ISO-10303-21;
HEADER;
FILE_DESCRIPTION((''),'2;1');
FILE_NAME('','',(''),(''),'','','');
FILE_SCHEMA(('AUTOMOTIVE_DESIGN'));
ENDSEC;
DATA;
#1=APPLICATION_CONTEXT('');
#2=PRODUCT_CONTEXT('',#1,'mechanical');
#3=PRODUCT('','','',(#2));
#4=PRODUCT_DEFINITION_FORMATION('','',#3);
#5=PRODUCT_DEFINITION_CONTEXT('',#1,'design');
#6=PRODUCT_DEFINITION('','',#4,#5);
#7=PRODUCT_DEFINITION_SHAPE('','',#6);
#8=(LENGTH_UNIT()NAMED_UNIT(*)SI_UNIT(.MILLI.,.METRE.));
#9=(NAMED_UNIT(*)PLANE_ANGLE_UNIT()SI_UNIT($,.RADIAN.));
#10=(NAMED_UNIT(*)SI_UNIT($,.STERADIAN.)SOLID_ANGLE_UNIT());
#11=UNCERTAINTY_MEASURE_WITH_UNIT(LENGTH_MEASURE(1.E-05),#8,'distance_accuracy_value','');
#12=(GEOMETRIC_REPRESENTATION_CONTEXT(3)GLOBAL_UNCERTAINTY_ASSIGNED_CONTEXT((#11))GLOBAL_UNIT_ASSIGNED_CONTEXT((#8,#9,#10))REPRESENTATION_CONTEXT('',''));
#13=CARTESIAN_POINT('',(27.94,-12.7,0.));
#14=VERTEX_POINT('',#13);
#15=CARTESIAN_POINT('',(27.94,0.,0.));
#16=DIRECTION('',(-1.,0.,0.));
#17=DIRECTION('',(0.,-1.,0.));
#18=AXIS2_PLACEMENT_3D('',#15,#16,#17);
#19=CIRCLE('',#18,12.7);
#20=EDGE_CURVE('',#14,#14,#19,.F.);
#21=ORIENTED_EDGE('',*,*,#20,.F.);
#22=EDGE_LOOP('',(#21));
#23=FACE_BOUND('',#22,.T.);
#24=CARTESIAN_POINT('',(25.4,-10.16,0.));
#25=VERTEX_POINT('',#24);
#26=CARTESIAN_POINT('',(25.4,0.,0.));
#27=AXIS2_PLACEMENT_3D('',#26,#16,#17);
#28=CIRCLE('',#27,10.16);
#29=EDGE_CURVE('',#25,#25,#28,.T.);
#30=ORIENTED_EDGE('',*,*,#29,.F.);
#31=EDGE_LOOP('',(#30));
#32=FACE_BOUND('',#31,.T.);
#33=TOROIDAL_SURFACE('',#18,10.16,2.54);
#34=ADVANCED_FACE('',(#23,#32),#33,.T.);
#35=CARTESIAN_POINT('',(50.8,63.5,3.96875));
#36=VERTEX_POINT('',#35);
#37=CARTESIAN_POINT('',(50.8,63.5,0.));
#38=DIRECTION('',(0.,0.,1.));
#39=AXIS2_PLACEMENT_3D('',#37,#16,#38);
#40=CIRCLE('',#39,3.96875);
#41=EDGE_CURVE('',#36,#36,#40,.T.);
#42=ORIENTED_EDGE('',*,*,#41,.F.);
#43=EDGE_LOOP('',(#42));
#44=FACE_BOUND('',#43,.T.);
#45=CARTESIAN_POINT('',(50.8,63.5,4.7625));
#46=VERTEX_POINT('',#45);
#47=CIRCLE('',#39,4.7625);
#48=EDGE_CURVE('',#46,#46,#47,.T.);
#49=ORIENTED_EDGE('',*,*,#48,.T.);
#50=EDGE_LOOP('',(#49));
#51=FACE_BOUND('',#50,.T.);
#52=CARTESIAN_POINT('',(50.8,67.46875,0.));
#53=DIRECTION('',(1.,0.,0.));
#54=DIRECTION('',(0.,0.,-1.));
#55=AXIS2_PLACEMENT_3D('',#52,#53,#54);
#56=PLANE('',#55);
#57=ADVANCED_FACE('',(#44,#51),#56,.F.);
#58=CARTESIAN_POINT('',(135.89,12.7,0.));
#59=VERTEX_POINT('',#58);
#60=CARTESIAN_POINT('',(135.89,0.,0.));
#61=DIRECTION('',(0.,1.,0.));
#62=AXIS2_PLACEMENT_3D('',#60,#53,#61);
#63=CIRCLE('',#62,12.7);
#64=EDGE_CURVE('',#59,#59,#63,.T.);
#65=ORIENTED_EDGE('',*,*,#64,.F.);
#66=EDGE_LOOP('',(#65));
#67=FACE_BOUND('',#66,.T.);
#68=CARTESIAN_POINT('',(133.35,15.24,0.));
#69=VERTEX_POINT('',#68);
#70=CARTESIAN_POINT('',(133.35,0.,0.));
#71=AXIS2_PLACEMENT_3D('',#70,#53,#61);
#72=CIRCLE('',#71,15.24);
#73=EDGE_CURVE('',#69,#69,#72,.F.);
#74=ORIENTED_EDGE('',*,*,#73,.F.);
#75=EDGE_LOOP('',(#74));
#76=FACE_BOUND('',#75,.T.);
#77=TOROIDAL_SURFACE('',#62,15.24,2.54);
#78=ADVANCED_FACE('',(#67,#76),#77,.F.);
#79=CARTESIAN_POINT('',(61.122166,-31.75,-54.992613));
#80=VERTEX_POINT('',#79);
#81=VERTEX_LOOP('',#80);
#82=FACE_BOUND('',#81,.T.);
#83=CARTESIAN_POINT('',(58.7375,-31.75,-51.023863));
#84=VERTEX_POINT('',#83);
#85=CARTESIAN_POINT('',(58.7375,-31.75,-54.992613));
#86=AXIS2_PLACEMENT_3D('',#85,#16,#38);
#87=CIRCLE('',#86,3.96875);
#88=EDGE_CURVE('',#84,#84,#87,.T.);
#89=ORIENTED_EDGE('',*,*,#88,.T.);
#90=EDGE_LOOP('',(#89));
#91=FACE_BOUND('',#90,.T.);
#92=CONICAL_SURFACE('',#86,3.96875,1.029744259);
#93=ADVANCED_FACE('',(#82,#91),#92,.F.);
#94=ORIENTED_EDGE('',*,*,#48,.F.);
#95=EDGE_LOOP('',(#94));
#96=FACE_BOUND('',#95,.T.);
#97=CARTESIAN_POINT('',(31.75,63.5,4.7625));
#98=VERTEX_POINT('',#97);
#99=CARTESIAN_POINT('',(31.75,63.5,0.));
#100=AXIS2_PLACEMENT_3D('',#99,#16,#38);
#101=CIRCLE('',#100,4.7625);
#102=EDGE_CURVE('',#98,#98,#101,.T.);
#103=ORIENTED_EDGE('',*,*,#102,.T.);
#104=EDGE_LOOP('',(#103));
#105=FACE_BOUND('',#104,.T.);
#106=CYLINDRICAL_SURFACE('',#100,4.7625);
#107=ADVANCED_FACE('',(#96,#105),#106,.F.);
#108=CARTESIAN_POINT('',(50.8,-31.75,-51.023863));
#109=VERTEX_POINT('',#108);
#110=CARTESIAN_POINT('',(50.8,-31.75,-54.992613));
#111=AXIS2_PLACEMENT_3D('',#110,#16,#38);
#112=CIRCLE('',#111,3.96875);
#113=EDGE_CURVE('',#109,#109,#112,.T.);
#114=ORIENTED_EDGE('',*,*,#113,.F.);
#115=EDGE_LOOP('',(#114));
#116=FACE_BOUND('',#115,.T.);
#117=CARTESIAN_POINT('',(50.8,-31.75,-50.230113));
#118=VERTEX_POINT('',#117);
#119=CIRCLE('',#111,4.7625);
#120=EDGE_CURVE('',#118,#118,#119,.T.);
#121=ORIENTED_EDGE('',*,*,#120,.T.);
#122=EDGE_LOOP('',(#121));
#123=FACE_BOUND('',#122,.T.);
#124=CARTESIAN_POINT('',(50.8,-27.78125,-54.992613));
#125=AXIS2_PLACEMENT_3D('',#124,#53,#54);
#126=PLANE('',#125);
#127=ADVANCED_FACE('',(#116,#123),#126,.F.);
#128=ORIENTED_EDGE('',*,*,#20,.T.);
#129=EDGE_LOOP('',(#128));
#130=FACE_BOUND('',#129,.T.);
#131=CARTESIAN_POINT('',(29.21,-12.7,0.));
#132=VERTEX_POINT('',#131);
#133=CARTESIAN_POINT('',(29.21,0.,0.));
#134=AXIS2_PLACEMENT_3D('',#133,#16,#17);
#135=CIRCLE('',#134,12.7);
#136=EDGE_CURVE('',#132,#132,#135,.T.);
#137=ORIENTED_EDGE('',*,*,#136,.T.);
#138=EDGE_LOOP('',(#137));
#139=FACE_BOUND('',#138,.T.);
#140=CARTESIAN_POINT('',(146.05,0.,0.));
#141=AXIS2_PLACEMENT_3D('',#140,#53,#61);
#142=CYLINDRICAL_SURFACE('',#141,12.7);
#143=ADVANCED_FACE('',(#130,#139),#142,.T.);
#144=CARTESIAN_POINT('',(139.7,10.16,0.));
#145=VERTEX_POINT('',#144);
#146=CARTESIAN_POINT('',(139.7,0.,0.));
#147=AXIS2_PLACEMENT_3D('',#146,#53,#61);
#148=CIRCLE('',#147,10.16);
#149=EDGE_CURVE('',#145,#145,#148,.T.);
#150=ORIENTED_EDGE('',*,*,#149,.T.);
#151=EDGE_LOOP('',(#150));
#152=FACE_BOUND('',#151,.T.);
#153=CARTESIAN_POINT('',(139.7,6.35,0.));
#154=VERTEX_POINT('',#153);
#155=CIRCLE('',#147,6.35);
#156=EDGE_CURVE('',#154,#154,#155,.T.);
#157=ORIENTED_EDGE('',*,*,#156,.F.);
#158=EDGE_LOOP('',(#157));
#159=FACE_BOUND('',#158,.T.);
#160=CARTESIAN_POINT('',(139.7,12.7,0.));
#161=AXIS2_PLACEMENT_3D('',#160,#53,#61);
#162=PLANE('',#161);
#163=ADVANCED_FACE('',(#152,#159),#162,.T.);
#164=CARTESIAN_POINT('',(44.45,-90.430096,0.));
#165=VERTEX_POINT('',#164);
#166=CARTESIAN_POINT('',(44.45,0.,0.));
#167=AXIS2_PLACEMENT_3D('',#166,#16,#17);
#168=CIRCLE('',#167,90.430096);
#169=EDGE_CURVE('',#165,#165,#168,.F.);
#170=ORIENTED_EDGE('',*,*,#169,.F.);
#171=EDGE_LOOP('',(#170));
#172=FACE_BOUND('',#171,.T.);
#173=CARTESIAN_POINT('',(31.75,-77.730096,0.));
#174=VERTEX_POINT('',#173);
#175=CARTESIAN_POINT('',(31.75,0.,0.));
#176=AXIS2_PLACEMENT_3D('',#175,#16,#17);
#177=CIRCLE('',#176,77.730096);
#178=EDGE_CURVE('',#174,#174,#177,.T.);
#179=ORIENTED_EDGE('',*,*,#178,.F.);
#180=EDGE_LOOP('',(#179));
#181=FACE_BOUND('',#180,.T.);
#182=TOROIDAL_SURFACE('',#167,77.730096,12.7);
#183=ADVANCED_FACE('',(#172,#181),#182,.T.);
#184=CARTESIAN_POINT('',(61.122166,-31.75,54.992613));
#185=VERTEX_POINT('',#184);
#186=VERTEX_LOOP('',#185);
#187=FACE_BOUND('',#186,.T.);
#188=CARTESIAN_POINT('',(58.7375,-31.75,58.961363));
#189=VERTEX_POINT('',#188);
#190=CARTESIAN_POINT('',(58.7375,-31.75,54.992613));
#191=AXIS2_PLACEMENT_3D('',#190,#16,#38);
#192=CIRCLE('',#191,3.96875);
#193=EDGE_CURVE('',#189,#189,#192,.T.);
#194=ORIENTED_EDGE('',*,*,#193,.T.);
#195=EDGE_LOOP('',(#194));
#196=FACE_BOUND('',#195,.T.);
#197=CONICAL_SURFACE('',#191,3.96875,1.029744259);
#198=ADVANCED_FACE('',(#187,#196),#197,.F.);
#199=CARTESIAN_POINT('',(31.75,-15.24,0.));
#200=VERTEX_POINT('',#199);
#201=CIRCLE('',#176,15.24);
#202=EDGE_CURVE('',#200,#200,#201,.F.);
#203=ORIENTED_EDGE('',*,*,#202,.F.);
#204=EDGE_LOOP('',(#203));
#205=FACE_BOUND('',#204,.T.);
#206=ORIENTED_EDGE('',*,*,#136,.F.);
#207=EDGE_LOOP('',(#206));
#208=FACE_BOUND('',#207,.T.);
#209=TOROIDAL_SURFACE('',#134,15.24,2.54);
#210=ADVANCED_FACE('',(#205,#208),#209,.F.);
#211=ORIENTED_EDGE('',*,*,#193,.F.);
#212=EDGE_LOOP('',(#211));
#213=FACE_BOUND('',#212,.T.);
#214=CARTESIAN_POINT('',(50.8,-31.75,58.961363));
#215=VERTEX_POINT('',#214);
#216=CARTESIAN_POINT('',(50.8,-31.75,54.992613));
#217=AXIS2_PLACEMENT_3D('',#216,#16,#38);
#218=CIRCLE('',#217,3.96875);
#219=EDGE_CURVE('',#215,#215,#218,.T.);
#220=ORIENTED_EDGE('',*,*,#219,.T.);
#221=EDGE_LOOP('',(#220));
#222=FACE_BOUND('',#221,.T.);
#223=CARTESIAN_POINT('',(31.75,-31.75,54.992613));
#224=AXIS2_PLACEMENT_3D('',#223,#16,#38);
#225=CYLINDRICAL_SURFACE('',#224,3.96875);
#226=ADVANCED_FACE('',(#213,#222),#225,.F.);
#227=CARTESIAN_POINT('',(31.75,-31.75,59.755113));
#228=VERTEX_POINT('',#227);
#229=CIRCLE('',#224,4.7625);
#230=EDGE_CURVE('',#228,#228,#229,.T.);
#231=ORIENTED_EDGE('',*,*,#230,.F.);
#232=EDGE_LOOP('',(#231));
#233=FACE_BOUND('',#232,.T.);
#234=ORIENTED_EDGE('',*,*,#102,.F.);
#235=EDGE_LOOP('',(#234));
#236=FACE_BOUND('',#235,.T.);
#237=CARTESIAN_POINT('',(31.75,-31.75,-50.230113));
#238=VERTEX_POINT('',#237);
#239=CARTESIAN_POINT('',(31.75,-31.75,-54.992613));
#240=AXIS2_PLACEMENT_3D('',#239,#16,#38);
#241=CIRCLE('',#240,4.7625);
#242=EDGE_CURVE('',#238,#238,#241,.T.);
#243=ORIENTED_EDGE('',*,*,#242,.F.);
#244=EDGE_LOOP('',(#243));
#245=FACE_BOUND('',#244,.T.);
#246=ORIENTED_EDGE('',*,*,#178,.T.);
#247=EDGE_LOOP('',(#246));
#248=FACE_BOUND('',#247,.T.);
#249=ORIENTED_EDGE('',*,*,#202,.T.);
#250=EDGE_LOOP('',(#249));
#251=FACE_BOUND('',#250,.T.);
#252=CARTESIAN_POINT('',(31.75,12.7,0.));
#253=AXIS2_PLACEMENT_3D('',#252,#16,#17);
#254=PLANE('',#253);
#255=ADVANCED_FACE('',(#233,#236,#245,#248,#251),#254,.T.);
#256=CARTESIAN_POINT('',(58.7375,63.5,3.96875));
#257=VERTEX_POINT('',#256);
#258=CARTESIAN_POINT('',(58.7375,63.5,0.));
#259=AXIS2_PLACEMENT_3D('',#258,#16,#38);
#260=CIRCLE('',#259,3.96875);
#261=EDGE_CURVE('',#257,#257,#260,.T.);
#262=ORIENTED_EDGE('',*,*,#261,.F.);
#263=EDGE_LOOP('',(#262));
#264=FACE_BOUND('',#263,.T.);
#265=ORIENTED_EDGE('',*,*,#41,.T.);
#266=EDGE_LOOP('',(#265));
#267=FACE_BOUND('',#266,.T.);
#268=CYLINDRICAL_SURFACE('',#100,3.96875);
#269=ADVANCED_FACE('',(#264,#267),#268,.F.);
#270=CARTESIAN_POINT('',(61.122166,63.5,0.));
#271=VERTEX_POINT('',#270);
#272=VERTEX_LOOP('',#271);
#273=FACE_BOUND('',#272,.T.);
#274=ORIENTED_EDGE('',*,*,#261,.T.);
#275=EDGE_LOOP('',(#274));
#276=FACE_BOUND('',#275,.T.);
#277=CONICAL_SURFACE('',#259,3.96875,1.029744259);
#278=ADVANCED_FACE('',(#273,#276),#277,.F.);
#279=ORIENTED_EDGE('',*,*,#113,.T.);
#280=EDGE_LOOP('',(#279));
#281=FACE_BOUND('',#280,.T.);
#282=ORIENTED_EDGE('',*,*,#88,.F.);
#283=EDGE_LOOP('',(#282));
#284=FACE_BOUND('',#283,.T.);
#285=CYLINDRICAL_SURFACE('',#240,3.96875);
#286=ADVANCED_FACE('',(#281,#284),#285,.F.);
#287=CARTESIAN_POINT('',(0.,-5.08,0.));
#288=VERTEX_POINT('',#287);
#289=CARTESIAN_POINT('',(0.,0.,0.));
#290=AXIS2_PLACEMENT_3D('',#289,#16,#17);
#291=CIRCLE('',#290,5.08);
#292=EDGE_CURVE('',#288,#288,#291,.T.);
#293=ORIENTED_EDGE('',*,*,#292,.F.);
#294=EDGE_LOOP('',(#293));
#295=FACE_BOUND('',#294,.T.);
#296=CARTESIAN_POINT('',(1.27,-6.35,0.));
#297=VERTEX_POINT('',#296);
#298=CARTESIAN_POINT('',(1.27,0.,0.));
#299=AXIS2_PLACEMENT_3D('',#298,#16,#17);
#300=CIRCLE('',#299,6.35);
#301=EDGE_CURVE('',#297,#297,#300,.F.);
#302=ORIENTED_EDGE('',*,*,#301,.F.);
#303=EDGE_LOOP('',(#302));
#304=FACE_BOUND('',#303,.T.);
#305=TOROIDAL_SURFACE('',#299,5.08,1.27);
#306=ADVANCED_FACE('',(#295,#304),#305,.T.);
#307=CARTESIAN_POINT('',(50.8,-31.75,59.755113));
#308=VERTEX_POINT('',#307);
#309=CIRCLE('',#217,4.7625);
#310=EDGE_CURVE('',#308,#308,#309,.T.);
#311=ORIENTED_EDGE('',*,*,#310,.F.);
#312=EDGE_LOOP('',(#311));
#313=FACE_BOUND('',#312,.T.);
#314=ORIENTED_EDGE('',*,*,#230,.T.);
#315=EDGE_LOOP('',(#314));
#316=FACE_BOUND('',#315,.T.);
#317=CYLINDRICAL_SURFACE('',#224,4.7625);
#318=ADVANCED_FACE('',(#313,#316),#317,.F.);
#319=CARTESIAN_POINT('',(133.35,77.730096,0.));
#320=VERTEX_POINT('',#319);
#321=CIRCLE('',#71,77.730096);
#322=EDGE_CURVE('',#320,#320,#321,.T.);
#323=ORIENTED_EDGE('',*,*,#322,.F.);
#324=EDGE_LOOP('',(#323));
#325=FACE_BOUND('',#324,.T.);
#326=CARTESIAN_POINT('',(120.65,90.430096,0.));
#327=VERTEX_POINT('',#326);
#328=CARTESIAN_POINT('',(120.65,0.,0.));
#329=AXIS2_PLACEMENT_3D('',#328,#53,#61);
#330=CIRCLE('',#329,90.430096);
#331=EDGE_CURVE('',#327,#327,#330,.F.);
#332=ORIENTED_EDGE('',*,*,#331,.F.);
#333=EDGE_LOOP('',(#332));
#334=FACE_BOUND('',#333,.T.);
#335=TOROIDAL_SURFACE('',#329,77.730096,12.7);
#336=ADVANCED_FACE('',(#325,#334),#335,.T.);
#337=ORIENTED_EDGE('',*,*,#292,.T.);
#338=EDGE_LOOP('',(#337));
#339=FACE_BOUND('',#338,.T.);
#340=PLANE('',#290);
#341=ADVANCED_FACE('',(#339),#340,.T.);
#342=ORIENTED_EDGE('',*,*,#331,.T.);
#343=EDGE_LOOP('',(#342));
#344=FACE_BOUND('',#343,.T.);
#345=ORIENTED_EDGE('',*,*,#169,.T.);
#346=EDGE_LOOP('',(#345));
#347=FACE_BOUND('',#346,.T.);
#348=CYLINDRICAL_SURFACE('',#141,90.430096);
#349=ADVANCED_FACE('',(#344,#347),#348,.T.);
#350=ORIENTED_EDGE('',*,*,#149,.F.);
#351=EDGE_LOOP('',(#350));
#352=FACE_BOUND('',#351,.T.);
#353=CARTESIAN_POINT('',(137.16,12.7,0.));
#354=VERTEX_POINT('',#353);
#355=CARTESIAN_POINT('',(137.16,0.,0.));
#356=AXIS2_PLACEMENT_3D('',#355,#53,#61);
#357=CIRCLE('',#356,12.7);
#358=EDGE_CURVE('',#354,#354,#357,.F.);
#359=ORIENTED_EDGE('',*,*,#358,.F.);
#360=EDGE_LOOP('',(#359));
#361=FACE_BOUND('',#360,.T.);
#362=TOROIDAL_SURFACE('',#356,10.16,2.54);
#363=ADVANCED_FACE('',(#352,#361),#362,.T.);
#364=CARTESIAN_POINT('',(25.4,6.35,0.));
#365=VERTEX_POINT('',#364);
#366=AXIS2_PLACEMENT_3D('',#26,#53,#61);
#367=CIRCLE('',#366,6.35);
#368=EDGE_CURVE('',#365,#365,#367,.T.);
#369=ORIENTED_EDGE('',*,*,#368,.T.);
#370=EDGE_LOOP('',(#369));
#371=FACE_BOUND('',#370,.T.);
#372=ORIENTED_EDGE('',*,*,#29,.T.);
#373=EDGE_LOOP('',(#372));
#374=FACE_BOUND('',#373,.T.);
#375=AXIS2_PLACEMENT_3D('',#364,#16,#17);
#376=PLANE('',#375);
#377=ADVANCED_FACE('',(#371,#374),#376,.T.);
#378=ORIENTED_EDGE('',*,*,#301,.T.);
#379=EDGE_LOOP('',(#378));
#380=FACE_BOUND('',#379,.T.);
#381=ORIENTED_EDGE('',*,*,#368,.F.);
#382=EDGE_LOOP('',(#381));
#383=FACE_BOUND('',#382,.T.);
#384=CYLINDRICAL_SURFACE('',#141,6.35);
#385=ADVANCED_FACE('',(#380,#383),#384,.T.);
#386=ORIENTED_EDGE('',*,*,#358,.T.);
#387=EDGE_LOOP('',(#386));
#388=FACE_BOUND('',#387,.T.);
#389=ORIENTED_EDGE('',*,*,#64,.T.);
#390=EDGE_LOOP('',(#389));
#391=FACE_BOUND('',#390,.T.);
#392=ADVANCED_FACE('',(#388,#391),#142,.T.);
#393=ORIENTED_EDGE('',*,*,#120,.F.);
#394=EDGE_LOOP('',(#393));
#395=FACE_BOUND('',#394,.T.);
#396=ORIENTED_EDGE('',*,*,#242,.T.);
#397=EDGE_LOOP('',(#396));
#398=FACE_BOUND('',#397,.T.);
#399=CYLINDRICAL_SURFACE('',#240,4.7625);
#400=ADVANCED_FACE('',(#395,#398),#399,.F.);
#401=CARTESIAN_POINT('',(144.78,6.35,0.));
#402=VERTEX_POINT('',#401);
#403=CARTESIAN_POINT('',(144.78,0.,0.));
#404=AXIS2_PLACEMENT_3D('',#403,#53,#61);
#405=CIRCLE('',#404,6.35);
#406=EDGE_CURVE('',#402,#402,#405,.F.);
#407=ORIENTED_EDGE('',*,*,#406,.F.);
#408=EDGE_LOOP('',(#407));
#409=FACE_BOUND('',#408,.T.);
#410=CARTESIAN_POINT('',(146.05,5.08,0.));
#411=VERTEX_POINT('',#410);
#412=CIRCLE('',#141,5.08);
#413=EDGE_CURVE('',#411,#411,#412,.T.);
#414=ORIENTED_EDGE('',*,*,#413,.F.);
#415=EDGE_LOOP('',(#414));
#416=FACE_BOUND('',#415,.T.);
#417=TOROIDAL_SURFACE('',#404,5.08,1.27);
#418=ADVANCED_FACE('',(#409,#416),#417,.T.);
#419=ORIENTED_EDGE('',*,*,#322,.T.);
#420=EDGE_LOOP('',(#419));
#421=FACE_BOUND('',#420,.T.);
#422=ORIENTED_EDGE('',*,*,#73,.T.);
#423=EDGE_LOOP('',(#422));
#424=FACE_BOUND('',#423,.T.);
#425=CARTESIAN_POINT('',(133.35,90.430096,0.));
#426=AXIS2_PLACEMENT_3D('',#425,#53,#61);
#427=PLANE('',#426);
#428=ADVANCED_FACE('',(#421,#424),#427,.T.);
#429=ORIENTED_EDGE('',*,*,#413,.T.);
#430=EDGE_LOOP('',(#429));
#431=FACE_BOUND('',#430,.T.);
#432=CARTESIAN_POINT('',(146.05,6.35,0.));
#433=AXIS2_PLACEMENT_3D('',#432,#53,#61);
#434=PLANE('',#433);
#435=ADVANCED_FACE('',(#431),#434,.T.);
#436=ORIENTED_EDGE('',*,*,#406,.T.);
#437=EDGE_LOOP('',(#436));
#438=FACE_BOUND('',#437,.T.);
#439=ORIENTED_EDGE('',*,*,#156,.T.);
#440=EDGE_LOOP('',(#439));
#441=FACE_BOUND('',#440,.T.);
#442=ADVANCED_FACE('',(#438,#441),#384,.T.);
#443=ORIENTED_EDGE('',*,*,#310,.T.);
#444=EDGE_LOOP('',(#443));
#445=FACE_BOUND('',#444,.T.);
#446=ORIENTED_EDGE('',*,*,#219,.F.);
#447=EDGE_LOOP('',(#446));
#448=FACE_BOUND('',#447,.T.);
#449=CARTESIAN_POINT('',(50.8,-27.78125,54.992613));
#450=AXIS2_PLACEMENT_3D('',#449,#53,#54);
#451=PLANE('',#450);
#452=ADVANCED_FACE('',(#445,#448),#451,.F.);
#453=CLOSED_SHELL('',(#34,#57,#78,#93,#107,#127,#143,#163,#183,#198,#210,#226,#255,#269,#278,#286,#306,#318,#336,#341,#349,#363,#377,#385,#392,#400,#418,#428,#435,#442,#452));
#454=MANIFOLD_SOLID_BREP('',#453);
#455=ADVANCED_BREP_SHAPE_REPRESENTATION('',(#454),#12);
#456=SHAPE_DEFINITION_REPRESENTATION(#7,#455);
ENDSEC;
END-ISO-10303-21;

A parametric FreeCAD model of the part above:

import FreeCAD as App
import Part
import Sketcher
Q = App.Units.Quantity


def edges_at(feature, points):
    """Names of the edges that pass closest to the given points."""
    edges = feature.Shape.Edges
    near = lambda p: min(range(len(edges)), key=lambda i: edges[i].distToShape(Part.Vertex(*p))[0])
    return sorted({f"Edge{near(p) + 1}" for p in points})


def add_polygon(sketch, points):
    """Adds a closed chain of lines whose ends are joined by coincident constraints."""
    first, n = sketch.GeometryCount, len(points)
    for a, b in zip(points, points[1:] + points[:1]):
        sketch.addGeometry(Part.LineSegment(App.Vector(*a, 0), App.Vector(*b, 0)), False)
    for i in range(n):
        sketch.addConstraint(Sketcher.Constraint("Coincident", first + i, 2, first + (i + 1) % n, 1))

doc = App.newDocument("Part")
body = doc.addObject("PartDesign::Body", "Body")

sketch1 = doc.addObject("Sketcher::SketchObject", "Sketch")
body.addObject(sketch1)
sketch1.AttachmentSupport = (doc.XY_Plane, [""])
sketch1.MapMode = "FlatFace"
add_polygon(sketch1, [(0, 6), (0, 0), (146, 0), (146, 6), (140, 6), (140, 13), (133, 13), (133, 90), (32, 90), (32, 13), (25, 13), (25, 6)])
sketch1.addConstraint([
    Sketcher.Constraint("Vertical", 0),
    Sketcher.Constraint("Horizontal", 1),
    Sketcher.Constraint("Vertical", 2),
    Sketcher.Constraint("Horizontal", 3),
    Sketcher.Constraint("Vertical", 4),
    Sketcher.Constraint("Horizontal", 5),
    Sketcher.Constraint("Vertical", 6),
    Sketcher.Constraint("Horizontal", 7),
    Sketcher.Constraint("Vertical", 8),
    Sketcher.Constraint("Horizontal", 9),
    Sketcher.Constraint("Vertical", 10),
    Sketcher.Constraint("Horizontal", 11),
    Sketcher.Constraint("Coincident", 0, 2, -1, 1),
    Sketcher.Constraint("Horizontal", 5, 2, 8, 2),
    Sketcher.Constraint("Horizontal", 3, 2, 10, 2),
    Sketcher.Constraint("Equal", 3, 5),
    Sketcher.Constraint("Equal", 5, 9),
    Sketcher.Constraint("Equal", 9, 0),
    Sketcher.Constraint("Equal", 2, 4),
    Sketcher.Constraint("DistanceX", 7, 2, 7, 1, Q("4 in")),
    Sketcher.Constraint("DistanceX", 11, 2, 11, 1, Q("1 in")),
    Sketcher.Constraint("DistanceX", 1, 1, 1, 2, Q("5.75 in")),
    Sketcher.Constraint("DistanceY", 6, 1, 6, 2, 77.730096),
])
revolution = doc.addObject("PartDesign::Revolution", "Revolution")
body.addObject(revolution)
revolution.Profile = sketch1
revolution.ReferenceAxis = (sketch1, ["H_Axis"])
revolution.Angle = 360
doc.recompute()

fillet = doc.addObject("PartDesign::Fillet", "Fillet")
body.addObject(fillet)
fillet.Base = (revolution, edges_at(revolution, [(133.35, -90.43, 0), (31.75, -90.43, 0)]))
fillet.Radius = Q("0.5 in")
doc.recompute()

fillet2 = doc.addObject("PartDesign::Fillet", "Fillet001")
body.addObject(fillet2)
fillet2.Base = (fillet, edges_at(fillet, [
    (133.35, -12.7, 0),
    (31.75, -12.7, 0),
    (25.4, -12.7, 0),
    (139.7, -12.7, 0),
]))
fillet2.Radius = Q("0.1 in")
doc.recompute()

fillet3 = doc.addObject("PartDesign::Fillet", "Fillet002")
body.addObject(fillet3)
fillet3.Base = (fillet2, edges_at(fillet2, [(0, -6.35, 0), (146.05, -6.35, 0)]))
fillet3.Radius = Q("0.05 in")

sketch2 = doc.addObject("Sketcher::SketchObject", "Sketch001")
body.addObject(sketch2)
sketch2.AttachmentSupport = (doc.XZ_Plane, [""])
sketch2.MapMode = "FlatFace"
sketch2.AttachmentOffset = App.Placement(App.Vector(0, 0, -2.5 * 25.4), App.Rotation())
add_polygon(sketch2, [(61.1, 0), (31.8, 0), (31.8, 4.8), (50.8, 4.8), (50.8, 4), (58.7, 4)])
sketch2.addConstraint([
    Sketcher.Constraint("Horizontal", 0),
    Sketcher.Constraint("Vertical", 1),
    Sketcher.Constraint("Horizontal", 2),
    Sketcher.Constraint("Vertical", 3),
    Sketcher.Constraint("Horizontal", 4),
    Sketcher.Constraint("PointOnObject", 0, 2, -1),
    Sketcher.Constraint("DistanceX", -1, 1, 2, 2, Q("2 in")),
    Sketcher.Constraint("Angle", 5, Q("-59 deg")),
    Sketcher.Constraint("DistanceX", 2, 1, 2, 2, Q("0.75 in")),
    Sketcher.Constraint("DistanceX", 4, 1, 4, 2, Q("0.3125 in")),
    Sketcher.Constraint("DistanceY", 1, 1, 1, 2, Q("0.1875 in")),
    Sketcher.Constraint("DistanceY", 3, 2, 3, 1, Q("0.03125 in")),
])
groove = doc.addObject("PartDesign::Groove", "Groove")
body.addObject(groove)
groove.Profile = sketch2
groove.ReferenceAxis = (sketch2, ["H_Axis"])
groove.Angle = 360
doc.recompute()

polarpattern = doc.addObject("PartDesign::PolarPattern", "PolarPattern")
body.addObject(polarpattern)
polarpattern.Originals = [groove]
polarpattern.Axis = (doc.X_Axis, [""])
polarpattern.Angle = 360
polarpattern.Occurrences = 3
body.Tip = polarpattern

doc.recompute()
